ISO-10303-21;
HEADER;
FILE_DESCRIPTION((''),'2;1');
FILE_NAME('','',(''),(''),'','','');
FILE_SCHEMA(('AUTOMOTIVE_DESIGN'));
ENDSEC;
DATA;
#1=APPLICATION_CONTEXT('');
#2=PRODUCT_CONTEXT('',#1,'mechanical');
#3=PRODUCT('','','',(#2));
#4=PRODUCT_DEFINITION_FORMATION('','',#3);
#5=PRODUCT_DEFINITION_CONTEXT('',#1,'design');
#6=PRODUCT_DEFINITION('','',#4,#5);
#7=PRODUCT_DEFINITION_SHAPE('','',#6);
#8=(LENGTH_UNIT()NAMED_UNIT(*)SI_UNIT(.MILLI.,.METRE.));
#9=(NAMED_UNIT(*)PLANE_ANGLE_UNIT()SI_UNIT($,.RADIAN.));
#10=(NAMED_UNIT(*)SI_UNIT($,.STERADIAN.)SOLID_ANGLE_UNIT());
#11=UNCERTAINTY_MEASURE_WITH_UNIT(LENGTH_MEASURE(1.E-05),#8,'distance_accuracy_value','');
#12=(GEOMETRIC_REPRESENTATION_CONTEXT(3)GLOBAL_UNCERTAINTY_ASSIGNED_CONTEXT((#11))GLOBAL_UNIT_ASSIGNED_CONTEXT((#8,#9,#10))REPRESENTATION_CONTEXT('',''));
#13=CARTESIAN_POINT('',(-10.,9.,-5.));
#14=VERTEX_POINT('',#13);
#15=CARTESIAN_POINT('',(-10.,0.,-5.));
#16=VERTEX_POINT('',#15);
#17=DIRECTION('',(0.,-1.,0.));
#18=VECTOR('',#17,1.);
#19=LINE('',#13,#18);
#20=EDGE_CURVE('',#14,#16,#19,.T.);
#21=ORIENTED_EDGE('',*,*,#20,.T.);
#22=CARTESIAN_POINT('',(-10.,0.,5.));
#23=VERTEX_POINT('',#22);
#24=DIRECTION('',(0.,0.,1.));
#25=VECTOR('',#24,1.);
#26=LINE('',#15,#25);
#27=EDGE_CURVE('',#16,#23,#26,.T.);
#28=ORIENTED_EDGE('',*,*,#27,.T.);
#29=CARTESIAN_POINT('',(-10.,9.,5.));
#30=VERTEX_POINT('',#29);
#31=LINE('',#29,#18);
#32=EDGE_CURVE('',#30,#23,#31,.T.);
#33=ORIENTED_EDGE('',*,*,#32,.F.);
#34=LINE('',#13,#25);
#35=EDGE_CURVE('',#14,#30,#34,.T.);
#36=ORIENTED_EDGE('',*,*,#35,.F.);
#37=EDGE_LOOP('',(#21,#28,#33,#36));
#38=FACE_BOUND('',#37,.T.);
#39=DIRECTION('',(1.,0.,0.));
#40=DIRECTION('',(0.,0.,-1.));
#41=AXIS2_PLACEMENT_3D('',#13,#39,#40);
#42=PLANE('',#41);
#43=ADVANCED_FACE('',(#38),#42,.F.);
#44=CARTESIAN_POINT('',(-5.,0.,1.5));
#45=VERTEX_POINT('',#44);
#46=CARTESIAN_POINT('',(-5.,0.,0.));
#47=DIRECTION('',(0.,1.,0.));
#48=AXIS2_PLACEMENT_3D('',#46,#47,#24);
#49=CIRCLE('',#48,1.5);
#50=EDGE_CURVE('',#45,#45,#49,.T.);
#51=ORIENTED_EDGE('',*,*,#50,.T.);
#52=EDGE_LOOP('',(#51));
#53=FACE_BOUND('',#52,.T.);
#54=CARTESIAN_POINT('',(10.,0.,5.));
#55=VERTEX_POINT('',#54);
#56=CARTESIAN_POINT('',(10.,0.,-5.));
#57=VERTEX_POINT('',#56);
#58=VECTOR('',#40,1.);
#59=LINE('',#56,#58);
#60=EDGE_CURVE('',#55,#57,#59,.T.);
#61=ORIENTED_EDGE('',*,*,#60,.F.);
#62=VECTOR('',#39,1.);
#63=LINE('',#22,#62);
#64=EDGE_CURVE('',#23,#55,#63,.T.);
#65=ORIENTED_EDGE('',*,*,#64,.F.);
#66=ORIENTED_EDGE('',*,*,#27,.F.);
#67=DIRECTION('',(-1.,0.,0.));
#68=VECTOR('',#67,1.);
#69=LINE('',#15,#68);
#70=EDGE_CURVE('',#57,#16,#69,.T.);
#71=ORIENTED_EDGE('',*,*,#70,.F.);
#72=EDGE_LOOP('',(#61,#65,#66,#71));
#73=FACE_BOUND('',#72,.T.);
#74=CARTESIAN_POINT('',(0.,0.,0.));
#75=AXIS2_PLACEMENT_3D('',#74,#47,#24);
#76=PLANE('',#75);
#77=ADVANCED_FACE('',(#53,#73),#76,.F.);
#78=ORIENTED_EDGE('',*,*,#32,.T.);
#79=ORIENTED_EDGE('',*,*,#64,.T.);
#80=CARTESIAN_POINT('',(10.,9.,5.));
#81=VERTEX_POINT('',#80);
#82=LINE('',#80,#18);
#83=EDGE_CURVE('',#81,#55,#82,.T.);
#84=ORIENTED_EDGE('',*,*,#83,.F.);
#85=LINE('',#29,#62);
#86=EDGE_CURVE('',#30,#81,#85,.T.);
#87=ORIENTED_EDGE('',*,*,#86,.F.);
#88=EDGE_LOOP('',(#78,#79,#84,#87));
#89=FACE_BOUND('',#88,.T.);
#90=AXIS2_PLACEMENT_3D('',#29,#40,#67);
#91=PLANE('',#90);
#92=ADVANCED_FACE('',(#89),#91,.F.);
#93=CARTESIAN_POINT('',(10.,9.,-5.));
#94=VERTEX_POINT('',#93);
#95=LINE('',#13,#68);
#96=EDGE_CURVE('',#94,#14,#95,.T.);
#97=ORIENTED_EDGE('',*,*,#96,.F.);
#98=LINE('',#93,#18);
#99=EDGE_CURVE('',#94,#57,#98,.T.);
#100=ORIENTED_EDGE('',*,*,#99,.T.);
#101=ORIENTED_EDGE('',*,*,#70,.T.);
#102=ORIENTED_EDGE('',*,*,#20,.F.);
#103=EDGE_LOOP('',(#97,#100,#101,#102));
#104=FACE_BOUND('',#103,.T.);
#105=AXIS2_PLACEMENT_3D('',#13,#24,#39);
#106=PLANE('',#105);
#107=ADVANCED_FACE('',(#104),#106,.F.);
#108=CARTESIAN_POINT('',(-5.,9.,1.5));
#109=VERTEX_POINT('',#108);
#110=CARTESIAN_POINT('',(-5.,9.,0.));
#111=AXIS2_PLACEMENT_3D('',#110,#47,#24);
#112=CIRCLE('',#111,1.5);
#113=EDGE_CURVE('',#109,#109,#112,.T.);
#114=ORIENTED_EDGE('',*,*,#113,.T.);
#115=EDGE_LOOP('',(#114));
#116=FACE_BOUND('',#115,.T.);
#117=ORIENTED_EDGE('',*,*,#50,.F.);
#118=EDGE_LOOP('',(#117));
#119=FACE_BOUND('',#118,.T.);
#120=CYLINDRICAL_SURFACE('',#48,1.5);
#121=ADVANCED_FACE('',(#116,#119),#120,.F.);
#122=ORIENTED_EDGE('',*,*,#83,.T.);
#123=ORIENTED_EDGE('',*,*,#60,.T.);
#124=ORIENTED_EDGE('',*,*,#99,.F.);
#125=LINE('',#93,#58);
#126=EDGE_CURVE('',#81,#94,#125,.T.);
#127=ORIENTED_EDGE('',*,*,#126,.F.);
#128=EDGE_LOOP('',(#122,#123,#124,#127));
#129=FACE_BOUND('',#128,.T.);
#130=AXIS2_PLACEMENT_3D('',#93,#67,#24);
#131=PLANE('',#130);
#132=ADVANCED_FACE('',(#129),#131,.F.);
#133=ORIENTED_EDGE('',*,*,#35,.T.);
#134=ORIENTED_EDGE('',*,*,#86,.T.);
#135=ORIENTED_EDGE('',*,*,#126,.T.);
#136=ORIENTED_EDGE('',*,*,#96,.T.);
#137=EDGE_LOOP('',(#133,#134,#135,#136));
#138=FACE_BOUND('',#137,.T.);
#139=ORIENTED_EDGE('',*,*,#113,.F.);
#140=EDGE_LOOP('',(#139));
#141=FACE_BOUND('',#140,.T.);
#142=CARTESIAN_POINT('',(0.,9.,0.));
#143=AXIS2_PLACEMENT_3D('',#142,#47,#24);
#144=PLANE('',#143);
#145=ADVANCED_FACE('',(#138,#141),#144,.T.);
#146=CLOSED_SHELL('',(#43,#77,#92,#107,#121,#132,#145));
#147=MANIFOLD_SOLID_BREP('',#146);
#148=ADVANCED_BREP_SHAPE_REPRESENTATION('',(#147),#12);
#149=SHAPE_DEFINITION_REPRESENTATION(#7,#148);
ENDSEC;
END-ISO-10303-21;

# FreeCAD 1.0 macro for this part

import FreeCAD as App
import Part
import Sketcher
from FreeCAD import Vector
Q = App.Units.Quantity


def add_polygon(sketch, points):
    """Adds a closed chain of lines whose ends are joined by coincident constraints."""
    first, n = sketch.GeometryCount, len(points)
    for a, b in zip(points, points[1:] + points[:1]):
        sketch.addGeometry(Part.LineSegment(App.Vector(*a, 0), App.Vector(*b, 0)), False)
    for i in range(n):
        sketch.addConstraint(Sketcher.Constraint("Coincident", first + i, 2, first + (i + 1) % n, 1))

doc = App.newDocument("Part")
params = doc.addObject("Spreadsheet::Sheet", "Params")
for row, (alias, value) in enumerate([
    ("sketch1_width", "20 mm"),
    ("sketch1_height", "10 mm"),
    ("pad1_length", "9 mm"),
    ("sketch2_diameter", "3 mm"),
], start=1):
    params.set(f"A{row}", alias)
    params.set(f"B{row}", "=" + value)
    params.setAlias(f"B{row}", alias)

body = doc.addObject("PartDesign::Body", "Body")

sketch1 = body.newObject("Sketcher::SketchObject", "Sketch")
sketch1.AttachmentSupport = (doc.getObject("XZ_Plane"), [""])
sketch1.MapMode = "FlatFace"
add_polygon(sketch1, [(-10, -5), (-10, 5), (10, 5), (10, -5)])
sketch1.addConstraint([
    Sketcher.Constraint("Vertical", 0),
    Sketcher.Constraint("Horizontal", 1),
    Sketcher.Constraint("Vertical", 2),
    Sketcher.Constraint("Horizontal", 3),
    Sketcher.Constraint("Symmetric", 0, 2, 2, 2, -1, 1),
    Sketcher.Constraint("DistanceX", 1, 1, 1, 2, Q("20 mm")),
    Sketcher.Constraint("DistanceY", 0, 1, 0, 2, Q("10 mm")),
])
sketch1.setExpression("Constraints[9]", "Params.sketch1_width")
sketch1.setExpression("Constraints[10]", "Params.sketch1_height")
pad1 = body.newObject("PartDesign::Pad", "Pad")
pad1.Profile = sketch1
pad1.setExpression("Length", "Params.pad1_length")
pad1.Reversed = True

sketch2 = body.newObject("Sketcher::SketchObject", "Sketch001")
sketch2.AttachmentSupport = (doc.getObject("XZ_Plane"), [""])
sketch2.MapMode = "FlatFace"
sketch2.AttachmentOffset = App.Placement(Vector(0, 0, -9), App.Rotation())
sketch2.addGeometry(Part.Circle(Vector(-5, 0, 0), Vector(0, 0, 1), 1.5), False)
sketch2.addConstraint([
    Sketcher.Constraint("PointOnObject", 0, 3, -1),
    Sketcher.Constraint("Diameter", 0, Q("3 mm")),
    Sketcher.Constraint("DistanceX", 0, 3, -1, 1, Q("5 mm")),
])
sketch2.setExpression("Constraints[1]", "Params.sketch2_diameter")
pocket1 = body.newObject("PartDesign::Pocket", "Pocket")
pocket1.Profile = sketch2
pocket1.Type = "ThroughAll"
pocket1.Reversed = True

doc.recompute()
